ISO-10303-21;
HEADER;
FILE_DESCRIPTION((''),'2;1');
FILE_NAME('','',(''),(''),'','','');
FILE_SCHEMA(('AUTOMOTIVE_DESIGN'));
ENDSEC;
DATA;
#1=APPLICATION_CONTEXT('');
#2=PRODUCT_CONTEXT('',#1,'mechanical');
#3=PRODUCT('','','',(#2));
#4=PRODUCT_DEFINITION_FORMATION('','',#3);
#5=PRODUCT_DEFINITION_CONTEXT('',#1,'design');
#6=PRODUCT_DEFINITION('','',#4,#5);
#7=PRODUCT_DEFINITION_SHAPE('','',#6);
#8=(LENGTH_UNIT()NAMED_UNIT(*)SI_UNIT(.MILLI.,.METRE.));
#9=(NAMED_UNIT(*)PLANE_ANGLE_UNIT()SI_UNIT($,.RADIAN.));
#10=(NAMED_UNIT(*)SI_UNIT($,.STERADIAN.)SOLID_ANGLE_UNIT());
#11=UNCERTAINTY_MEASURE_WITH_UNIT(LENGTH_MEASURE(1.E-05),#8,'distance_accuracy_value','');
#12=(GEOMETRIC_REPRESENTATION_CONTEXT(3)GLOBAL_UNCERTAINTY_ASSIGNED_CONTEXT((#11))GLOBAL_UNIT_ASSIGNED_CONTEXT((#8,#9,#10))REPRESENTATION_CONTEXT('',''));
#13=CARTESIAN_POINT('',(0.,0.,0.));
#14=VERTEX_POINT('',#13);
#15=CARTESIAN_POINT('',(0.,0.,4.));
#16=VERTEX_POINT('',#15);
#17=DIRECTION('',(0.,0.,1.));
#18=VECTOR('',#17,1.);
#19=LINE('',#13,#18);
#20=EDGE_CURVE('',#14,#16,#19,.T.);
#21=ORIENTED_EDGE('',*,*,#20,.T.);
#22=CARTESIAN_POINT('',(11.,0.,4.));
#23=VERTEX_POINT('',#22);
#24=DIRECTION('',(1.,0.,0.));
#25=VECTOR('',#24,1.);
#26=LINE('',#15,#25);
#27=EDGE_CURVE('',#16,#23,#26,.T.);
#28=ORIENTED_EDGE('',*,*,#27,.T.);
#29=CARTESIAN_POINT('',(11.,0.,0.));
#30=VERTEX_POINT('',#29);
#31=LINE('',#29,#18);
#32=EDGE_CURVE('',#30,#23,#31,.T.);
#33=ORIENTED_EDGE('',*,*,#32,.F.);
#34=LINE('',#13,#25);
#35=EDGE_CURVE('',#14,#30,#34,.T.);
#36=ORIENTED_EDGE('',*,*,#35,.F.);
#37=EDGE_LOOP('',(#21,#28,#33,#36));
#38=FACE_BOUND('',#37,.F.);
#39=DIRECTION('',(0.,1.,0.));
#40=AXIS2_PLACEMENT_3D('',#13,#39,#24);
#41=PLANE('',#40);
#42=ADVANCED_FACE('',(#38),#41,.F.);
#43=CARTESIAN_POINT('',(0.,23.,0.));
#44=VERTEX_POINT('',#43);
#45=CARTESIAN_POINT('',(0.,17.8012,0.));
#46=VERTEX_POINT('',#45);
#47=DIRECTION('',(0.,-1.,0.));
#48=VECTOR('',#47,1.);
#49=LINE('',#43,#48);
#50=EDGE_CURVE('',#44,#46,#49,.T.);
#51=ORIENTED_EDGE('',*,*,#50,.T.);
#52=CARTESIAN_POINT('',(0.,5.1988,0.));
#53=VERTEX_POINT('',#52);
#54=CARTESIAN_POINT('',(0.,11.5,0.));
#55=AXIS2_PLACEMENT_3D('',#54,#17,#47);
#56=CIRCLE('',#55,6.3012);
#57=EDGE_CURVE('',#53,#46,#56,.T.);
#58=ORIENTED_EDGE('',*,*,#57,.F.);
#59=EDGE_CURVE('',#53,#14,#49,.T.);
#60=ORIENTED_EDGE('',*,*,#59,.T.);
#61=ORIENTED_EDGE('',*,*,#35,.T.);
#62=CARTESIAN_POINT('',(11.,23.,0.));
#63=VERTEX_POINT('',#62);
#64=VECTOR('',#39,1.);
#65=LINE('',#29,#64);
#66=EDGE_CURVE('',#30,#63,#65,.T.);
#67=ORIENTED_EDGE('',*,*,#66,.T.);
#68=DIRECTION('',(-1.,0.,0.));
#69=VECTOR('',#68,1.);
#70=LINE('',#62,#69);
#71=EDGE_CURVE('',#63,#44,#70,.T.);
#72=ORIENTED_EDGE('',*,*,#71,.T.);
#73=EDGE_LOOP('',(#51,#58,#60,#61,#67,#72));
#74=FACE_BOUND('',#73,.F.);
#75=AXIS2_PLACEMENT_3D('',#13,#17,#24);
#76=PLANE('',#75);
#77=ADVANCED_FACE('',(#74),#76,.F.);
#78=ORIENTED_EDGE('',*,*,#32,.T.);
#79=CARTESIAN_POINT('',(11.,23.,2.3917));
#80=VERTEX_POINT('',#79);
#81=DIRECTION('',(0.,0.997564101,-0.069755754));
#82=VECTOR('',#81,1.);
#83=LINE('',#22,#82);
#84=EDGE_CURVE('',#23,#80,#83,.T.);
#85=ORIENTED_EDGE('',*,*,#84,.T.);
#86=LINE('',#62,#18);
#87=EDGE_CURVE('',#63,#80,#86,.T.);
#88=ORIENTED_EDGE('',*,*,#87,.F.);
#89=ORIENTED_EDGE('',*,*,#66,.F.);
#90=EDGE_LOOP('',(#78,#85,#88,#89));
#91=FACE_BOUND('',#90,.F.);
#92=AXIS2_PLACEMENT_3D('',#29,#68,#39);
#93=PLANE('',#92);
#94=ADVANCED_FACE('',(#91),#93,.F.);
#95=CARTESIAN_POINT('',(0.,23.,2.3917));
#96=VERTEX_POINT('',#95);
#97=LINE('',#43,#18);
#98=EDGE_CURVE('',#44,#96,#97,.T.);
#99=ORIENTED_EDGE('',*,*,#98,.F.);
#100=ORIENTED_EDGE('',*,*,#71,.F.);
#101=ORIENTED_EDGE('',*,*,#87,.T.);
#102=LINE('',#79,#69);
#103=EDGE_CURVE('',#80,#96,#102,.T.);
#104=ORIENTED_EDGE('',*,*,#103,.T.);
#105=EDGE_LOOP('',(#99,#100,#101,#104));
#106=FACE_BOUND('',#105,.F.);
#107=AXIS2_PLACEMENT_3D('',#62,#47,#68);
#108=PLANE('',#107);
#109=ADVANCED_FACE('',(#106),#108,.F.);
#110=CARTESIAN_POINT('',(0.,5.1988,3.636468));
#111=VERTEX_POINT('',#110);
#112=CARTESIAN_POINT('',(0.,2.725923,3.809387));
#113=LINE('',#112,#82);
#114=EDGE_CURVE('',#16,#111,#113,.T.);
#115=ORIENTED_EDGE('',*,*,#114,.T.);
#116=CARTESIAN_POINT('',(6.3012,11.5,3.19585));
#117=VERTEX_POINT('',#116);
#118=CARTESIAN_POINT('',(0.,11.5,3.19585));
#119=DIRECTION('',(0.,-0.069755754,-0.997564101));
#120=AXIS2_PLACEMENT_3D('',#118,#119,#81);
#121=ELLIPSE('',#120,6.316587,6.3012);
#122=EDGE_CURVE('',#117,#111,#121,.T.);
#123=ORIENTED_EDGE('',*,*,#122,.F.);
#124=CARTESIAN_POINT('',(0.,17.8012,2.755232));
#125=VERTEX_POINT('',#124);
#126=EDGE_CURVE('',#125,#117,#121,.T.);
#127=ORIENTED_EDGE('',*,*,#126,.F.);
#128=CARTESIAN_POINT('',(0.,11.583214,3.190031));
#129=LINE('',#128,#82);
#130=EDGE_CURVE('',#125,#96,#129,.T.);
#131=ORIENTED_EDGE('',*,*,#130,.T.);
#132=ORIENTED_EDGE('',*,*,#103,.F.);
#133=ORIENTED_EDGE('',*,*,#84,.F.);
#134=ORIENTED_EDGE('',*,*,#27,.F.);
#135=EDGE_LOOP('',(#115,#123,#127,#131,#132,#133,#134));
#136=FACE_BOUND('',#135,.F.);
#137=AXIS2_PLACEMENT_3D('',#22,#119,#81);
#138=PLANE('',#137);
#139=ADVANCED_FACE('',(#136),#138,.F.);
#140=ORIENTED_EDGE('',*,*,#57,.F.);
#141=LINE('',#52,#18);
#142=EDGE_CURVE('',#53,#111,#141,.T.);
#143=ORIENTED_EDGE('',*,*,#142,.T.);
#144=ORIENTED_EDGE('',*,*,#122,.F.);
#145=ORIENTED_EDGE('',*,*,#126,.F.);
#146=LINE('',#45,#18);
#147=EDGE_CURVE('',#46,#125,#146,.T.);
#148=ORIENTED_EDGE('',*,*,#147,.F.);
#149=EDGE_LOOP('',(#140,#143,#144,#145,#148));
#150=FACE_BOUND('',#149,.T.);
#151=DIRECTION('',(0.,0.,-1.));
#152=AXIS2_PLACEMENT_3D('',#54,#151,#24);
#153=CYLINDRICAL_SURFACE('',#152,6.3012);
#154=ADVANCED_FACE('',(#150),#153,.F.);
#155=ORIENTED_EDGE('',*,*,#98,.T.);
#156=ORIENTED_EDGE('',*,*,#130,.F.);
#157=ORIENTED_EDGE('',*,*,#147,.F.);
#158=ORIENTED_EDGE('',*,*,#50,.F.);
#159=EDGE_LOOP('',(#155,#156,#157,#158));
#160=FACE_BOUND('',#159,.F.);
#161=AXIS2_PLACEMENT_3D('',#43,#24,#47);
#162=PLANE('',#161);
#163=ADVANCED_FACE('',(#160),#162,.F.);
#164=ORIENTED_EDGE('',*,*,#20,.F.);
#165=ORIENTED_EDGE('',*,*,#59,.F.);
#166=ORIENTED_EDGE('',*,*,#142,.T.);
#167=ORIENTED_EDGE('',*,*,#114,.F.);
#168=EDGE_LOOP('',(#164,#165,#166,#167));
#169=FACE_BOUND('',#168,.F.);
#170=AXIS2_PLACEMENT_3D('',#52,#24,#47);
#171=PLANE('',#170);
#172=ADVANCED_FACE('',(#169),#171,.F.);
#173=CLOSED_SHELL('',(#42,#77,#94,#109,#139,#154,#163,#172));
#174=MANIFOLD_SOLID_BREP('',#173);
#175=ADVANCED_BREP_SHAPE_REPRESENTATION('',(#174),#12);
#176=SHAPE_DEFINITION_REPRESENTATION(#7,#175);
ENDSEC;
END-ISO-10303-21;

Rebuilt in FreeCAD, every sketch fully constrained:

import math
import FreeCAD as App
import Part
import Sketcher
from FreeCAD import Vector
Q = App.Units.Quantity

doc = App.newDocument("Part")
body = doc.addObject("PartDesign::Body", "Body")

# Sketch on XY plane
sketch1 = doc.addObject("Sketcher::SketchObject", "Sketch")
body.addObject(sketch1)
sketch1.AttachmentSupport = (doc.XY_Plane, [""])
sketch1.MapMode = "FlatFace"
sketch1.addGeometry([
    Part.LineSegment(Vector(0, 5, 0), Vector(0, 0, 0)),  # 0
    Part.LineSegment(Vector(0, 0, 0), Vector(11, 0, 0)),  # 1
    Part.LineSegment(Vector(11, 0, 0), Vector(11, 23, 0)),  # 2
    Part.LineSegment(Vector(11, 23, 0), Vector(0, 23, 0)),  # 3
    Part.LineSegment(Vector(0, 23, 0), Vector(0, 18, 0)),  # 4
    Part.ArcOfCircle(Part.Circle(Vector(0, 12, 0), Vector(0, 0, 1), 6), math.radians(-90), math.radians(90)),  # 5
], False)
sketch1.addConstraint([
    Sketcher.Constraint("Coincident", 0, 2, 1, 1),
    Sketcher.Constraint("Coincident", 1, 2, 2, 1),
    Sketcher.Constraint("Coincident", 2, 2, 3, 1),
    Sketcher.Constraint("Coincident", 3, 2, 4, 1),
    Sketcher.Constraint("Coincident", 4, 2, 5, 2),
    Sketcher.Constraint("Coincident", 5, 1, 0, 1),
    Sketcher.Constraint("Vertical", 0),
    Sketcher.Constraint("Horizontal", 1),
    Sketcher.Constraint("Vertical", 2),
    Sketcher.Constraint("Horizontal", 3),
    Sketcher.Constraint("Vertical", 4),
    Sketcher.Constraint("Coincident", 0, 2, -1, 1),
    Sketcher.Constraint("PointOnObject", 5, 3, -2),
    Sketcher.Constraint("PointOnObject", 3, 2, -2),
    Sketcher.Constraint("Equal", 0, 4),
    Sketcher.Constraint("DistanceX", 1, 1, 1, 2, 11.0),
    Sketcher.Constraint("DistanceY", 2, 1, 2, 2, 23.0),
    Sketcher.Constraint("Radius", 5, 6.3012),
])
pad1 = doc.addObject("PartDesign::Pad", "Pad")
body.addObject(pad1)
pad1.Profile = sketch1
pad1.Length = 4

# Sketch on YZ plane
sketch2 = doc.addObject("Sketcher::SketchObject", "Sketch001")
body.addObject(sketch2)
sketch2.AttachmentSupport = (doc.YZ_Plane, [""])
sketch2.MapMode = "FlatFace"
sketch2.AttachmentOffset = App.Placement(Vector(0, 0, 11), App.Rotation())
sketch2.addGeometry([
    Part.LineSegment(Vector(23, 4, 0), Vector(0, 4, 0)),
    Part.LineSegment(Vector(0, 4, 0), Vector(23, 2.4, 0)),
    Part.LineSegment(Vector(23, 2.4, 0), Vector(23, 4, 0)),
], False)
sketch2.addConstraint([
    Sketcher.Constraint("Coincident", 0, 2, 1, 1),
    Sketcher.Constraint("Coincident", 1, 2, 2, 1),
    Sketcher.Constraint("Coincident", 2, 2, 0, 1),
    Sketcher.Constraint("Horizontal", 0),
    Sketcher.Constraint("Vertical", 2),
    Sketcher.Constraint("PointOnObject", 0, 2, -2),
    Sketcher.Constraint("Angle", 1, Q("-4 deg")),
    Sketcher.Constraint("DistanceY", -1, 1, 0, 2, 4.0),
    Sketcher.Constraint("DistanceX", 0, 2, 0, 1, 23.0),
])
pocket1 = doc.addObject("PartDesign::Pocket", "Pocket")
body.addObject(pocket1)
pocket1.Profile = sketch2
pocket1.Length = 14

doc.recompute()
